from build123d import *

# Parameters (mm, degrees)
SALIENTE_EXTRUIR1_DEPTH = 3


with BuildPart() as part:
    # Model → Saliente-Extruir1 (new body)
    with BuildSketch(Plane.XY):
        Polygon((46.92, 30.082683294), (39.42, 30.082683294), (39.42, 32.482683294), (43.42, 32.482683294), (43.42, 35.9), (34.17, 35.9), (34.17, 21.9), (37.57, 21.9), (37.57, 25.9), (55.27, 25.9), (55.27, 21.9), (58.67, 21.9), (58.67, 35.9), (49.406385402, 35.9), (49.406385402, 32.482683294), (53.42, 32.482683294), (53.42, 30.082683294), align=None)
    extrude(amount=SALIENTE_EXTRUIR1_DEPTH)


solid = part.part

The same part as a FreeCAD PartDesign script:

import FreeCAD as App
import Part
import Sketcher


def add_polygon(sketch, points):
    """Adds a closed chain of lines whose ends are joined by coincident constraints."""
    first, n = sketch.GeometryCount, len(points)
    for a, b in zip(points, points[1:] + points[:1]):
        sketch.addGeometry(Part.LineSegment(App.Vector(*a, 0), App.Vector(*b, 0)), False)
    for i in range(n):
        sketch.addConstraint(Sketcher.Constraint("Coincident", first + i, 2, first + (i + 1) % n, 1))

doc = App.newDocument("Part")
params = doc.addObject("Spreadsheet::Sheet", "Params")
for row, (alias, value) in enumerate([
    ("sketch1_width", "4 mm"),
    ("sketch1_width2", "14 mm"),
    ("sketch1_width3", "3.4 mm"),
    ("sketch1_width4", "17.7 mm"),
    ("sketch1_height", "2.4 mm"),
    ("pad1_length", "3 mm"),
], start=1):
    params.set(f"A{row}", alias)
    params.set(f"B{row}", "=" + value)
    params.setAlias(f"B{row}", alias)

body = doc.addObject("PartDesign::Body", "Body")

# Sketch on XY plane
sketch1 = body.newObject("Sketcher::SketchObject", "Sketch")
sketch1.AttachmentSupport = (doc.getObject("XY_Plane"), [""])
sketch1.MapMode = "FlatFace"
add_polygon(sketch1, [(39.4, 30.1), (39.4, 32.5), (43.4, 32.5), (43.4, 35.9), (34.2, 35.9), (34.2, 21.9), (37.6, 21.9), (37.6, 25.9), (55.3, 25.9), (55.3, 21.9), (58.7, 21.9), (58.7, 35.9), (49.4, 35.9), (49.4, 32.5), (53.4, 32.5), (53.4, 30.1)])  # lines 0-15
sketch1.addConstraint(Sketcher.Constraint("Vertical", 0))
sketch1.addConstraint(Sketcher.Constraint("Horizontal", 1))
sketch1.addConstraint(Sketcher.Constraint("Vertical", 2))
sketch1.addConstraint(Sketcher.Constraint("Horizontal", 3))
sketch1.addConstraint(Sketcher.Constraint("Vertical", 4))
sketch1.addConstraint(Sketcher.Constraint("Horizontal", 5))
sketch1.addConstraint(Sketcher.Constraint("Vertical", 6))
sketch1.addConstraint(Sketcher.Constraint("Horizontal", 7))
sketch1.addConstraint(Sketcher.Constraint("Vertical", 8))
sketch1.addConstraint(Sketcher.Constraint("Horizontal", 9))
sketch1.addConstraint(Sketcher.Constraint("Vertical", 10))
sketch1.addConstraint(Sketcher.Constraint("Horizontal", 11))
sketch1.addConstraint(Sketcher.Constraint("Vertical", 12))
sketch1.addConstraint(Sketcher.Constraint("Horizontal", 13))
sketch1.addConstraint(Sketcher.Constraint("Vertical", 14))
sketch1.addConstraint(Sketcher.Constraint("Horizontal", 15))
sketch1.addConstraint(Sketcher.Constraint("Horizontal", 5, 2, 8, 2))
sketch1.addConstraint(Sketcher.Constraint("Horizontal", 3, 2, 10, 2))
sketch1.addConstraint(Sketcher.Constraint("Horizontal", 1, 2, 12, 2))
sketch1.addConstraint(Sketcher.Constraint("Equal", 5, 9))
sketch1.addConstraint(Sketcher.Constraint("Equal", 15, 4))
sketch1.addConstraint(Sketcher.Constraint("Equal", 1, 6))
sketch1.addConstraint(Sketcher.Constraint("DistanceX", 1, 1, 1, 2, 4.0))
sketch1.addConstraint(Sketcher.Constraint("DistanceX", 15, 2, 15, 1, 14.0))
sketch1.addConstraint(Sketcher.Constraint("DistanceX", 5, 1, 5, 2, 3.4))
sketch1.addConstraint(Sketcher.Constraint("DistanceX", 7, 1, 7, 2, 17.7))
sketch1.addConstraint(Sketcher.Constraint("DistanceY", 0, 1, 0, 2, 2.4))
sketch1.addConstraint(Sketcher.Constraint("DistanceX", 3, 2, 3, 1, 9.25))
sketch1.addConstraint(Sketcher.Constraint("DistanceY", -1, 1, 2, 2, 35.9))
sketch1.addConstraint(Sketcher.Constraint("DistanceX", -1, 1, 0, 2, 39.42))
sketch1.addConstraint(Sketcher.Constraint("DistanceX", 11, 2, 11, 1, 9.263615))
sketch1.addConstraint(Sketcher.Constraint("DistanceY", 2, 1, 2, 2, 3.417317))
sketch1.setExpression("Constraints[38]", "Params.sketch1_width")
sketch1.setExpression("Constraints[39]", "Params.sketch1_width2")
sketch1.setExpression("Constraints[40]", "Params.sketch1_width3")
sketch1.setExpression("Constraints[41]", "Params.sketch1_width4")
sketch1.setExpression("Constraints[42]", "Params.sketch1_height")
pad1 = body.newObject("PartDesign::Pad", "Pad")
pad1.Profile = sketch1
pad1.setExpression("Length", "Params.pad1_length")

doc.recompute()
